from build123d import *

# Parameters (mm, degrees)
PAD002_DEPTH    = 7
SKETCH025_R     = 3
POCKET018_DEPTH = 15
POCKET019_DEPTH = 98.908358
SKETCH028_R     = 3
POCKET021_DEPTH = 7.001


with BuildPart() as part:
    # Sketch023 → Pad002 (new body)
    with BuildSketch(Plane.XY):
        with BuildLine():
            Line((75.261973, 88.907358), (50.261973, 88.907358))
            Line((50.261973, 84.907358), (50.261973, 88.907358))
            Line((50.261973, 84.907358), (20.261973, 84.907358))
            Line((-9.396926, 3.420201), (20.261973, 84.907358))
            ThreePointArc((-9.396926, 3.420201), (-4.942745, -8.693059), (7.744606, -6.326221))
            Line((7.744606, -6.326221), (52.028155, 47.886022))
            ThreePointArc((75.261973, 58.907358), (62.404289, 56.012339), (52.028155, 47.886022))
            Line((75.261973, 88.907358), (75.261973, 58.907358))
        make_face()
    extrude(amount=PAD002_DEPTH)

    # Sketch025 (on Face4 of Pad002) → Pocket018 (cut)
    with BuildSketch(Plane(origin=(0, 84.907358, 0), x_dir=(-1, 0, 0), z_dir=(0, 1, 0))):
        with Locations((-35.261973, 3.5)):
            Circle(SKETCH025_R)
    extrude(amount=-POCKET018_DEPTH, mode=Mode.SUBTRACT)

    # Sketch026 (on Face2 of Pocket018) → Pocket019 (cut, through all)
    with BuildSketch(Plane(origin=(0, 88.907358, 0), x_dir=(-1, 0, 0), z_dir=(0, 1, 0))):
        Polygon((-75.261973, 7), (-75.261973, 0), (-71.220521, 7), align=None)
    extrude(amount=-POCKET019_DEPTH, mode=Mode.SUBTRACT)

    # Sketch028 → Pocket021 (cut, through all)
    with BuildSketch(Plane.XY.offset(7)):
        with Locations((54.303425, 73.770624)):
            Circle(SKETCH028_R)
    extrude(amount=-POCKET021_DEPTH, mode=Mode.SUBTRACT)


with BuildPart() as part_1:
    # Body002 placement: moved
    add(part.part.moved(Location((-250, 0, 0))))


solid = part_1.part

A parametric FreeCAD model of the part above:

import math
import FreeCAD as App
import Part
import Sketcher
Q = App.Units.Quantity

doc = App.newDocument("Part")
body = doc.addObject("PartDesign::Body", "Body")

sketch1 = doc.addObject("Sketcher::SketchObject", "Sketch")
body.addObject(sketch1)
sketch1.AttachmentSupport = (doc.XY_Plane, [""])
sketch1.MapMode = "FlatFace"
sketch1.addGeometry(Part.LineSegment(App.Vector(75.3, 88.9, 0), App.Vector(50.3, 88.9, 0)), False)
sketch1.addGeometry(Part.LineSegment(App.Vector(50.3, 88.9, 0), App.Vector(50.3, 84.9, 0)), False)
sketch1.addGeometry(Part.LineSegment(App.Vector(50.3, 84.9, 0), App.Vector(20.3, 84.9, 0)), False)
sketch1.addGeometry(Part.LineSegment(App.Vector(20.3, 84.9, 0), App.Vector(-9.4, 3.4, 0)), False)
sketch1.addGeometry(Part.ArcOfCircle(Part.Circle(App.Vector(0, 0, 0), App.Vector(0, 0, 1), 10), math.radians(160), math.radians(321)), False)
sketch1.addGeometry(Part.LineSegment(App.Vector(7.7, -6.3, 0), App.Vector(52, 47.9, 0)), False)
sketch1.addGeometry(Part.ArcOfCircle(Part.Circle(App.Vector(75.3, 28.9, 0), App.Vector(0, 0, 1), 30), math.radians(90), math.radians(141)), False)
sketch1.addGeometry(Part.LineSegment(App.Vector(75.3, 58.9, 0), App.Vector(75.3, 88.9, 0)), False)
sketch1.addConstraint(Sketcher.Constraint("Coincident", 0, 2, 1, 1))
sketch1.addConstraint(Sketcher.Constraint("Coincident", 1, 2, 2, 1))
sketch1.addConstraint(Sketcher.Constraint("Coincident", 2, 2, 3, 1))
sketch1.addConstraint(Sketcher.Constraint("Tangent", 3, 2, 4, 1))
sketch1.addConstraint(Sketcher.Constraint("Tangent", 4, 2, 5, 1))
sketch1.addConstraint(Sketcher.Constraint("Tangent", 5, 2, 6, 2))
sketch1.addConstraint(Sketcher.Constraint("Coincident", 6, 1, 7, 1))
sketch1.addConstraint(Sketcher.Constraint("Coincident", 7, 2, 0, 1))
sketch1.addConstraint(Sketcher.Constraint("Horizontal", 0))
sketch1.addConstraint(Sketcher.Constraint("Vertical", 1))
sketch1.addConstraint(Sketcher.Constraint("Horizontal", 2))
sketch1.addConstraint(Sketcher.Constraint("Vertical", 7))
sketch1.addConstraint(Sketcher.Constraint("Coincident", 4, 3, -1, 1))
sketch1.addConstraint(Sketcher.Constraint("Equal", 2, 7))
sketch1.addConstraint(Sketcher.Constraint("Radius", 4, 10.0))
sketch1.addConstraint(Sketcher.Constraint("DistanceX", 0, 2, 0, 1, 25.0))
sketch1.addConstraint(Sketcher.Constraint("DistanceX", 2, 2, 2, 1, 30.0))
sketch1.addConstraint(Sketcher.Constraint("DistanceY", 1, 2, 1, 1, 4.0))
sketch1.addConstraint(Sketcher.Constraint("Angle", 3, Q("-110 deg")))
sketch1.addConstraint(Sketcher.Constraint("Distance", 5, 70.0))
sketch1.addConstraint(Sketcher.Constraint("Radius", 6, 29.999994))
sketch1.addConstraint(Sketcher.Constraint("DistanceX", 3, 2, 2, 2, 29.658899))
pad1 = doc.addObject("PartDesign::Pad", "Pad")
body.addObject(pad1)
pad1.Profile = sketch1
pad1.Length = 7

sketch2 = doc.addObject("Sketcher::SketchObject", "Sketch001")
body.addObject(sketch2)
sketch2.AttachmentSupport = (doc.XZ_Plane, [""])
sketch2.MapMode = "FlatFace"
sketch2.AttachmentOffset = App.Placement(App.Vector(0, 0, -84.907358), App.Rotation())
sketch2.addGeometry(Part.Circle(App.Vector(35.3, 3.5, 0), App.Vector(0, 0, 1), 3), False)
sketch2.addConstraint(Sketcher.Constraint("Diameter", 0, 6.0))
sketch2.addConstraint(Sketcher.Constraint("DistanceY", -1, 1, 0, 3, 3.5))
sketch2.addConstraint(Sketcher.Constraint("DistanceX", -1, 1, 0, 3, 35.261973))
pocket1 = doc.addObject("PartDesign::Pocket", "Pocket")
body.addObject(pocket1)
pocket1.Profile = sketch2
pocket1.Length = 15
pocket1.Reversed = True

sketch3 = doc.addObject("Sketcher::SketchObject", "Sketch002")
body.addObject(sketch3)
sketch3.AttachmentSupport = (doc.XZ_Plane, [""])
sketch3.MapMode = "FlatFace"
sketch3.AttachmentOffset = App.Placement(App.Vector(0, 0, -88.907358), App.Rotation())
sketch3.addGeometry(Part.LineSegment(App.Vector(75.3, 7, 0), App.Vector(75.3, 0, 0)), False)
sketch3.addGeometry(Part.LineSegment(App.Vector(75.3, 0, 0), App.Vector(71.2, 7, 0)), False)
sketch3.addGeometry(Part.LineSegment(App.Vector(71.2, 7, 0), App.Vector(75.3, 7, 0)), False)
sketch3.addConstraint(Sketcher.Constraint("Coincident", 0, 2, 1, 1))
sketch3.addConstraint(Sketcher.Constraint("Coincident", 1, 2, 2, 1))
sketch3.addConstraint(Sketcher.Constraint("Coincident", 2, 2, 0, 1))
sketch3.addConstraint(Sketcher.Constraint("Vertical", 0))
sketch3.addConstraint(Sketcher.Constraint("Horizontal", 2))
sketch3.addConstraint(Sketcher.Constraint("PointOnObject", 0, 2, -1))
sketch3.addConstraint(Sketcher.Constraint("DistanceY", 0, 2, 0, 1, 7.0))
sketch3.addConstraint(Sketcher.Constraint("Angle", 1, Q("120.000001 deg")))
sketch3.addConstraint(Sketcher.Constraint("DistanceX", -1, 1, 1, 2, 71.220521))
pocket2 = doc.addObject("PartDesign::Pocket", "Pocket001")
body.addObject(pocket2)
pocket2.Profile = sketch3
pocket2.Type = "ThroughAll"
pocket2.Reversed = True

sketch4 = doc.addObject("Sketcher::SketchObject", "Sketch003")
body.addObject(sketch4)
sketch4.AttachmentSupport = (doc.XY_Plane, [""])
sketch4.MapMode = "FlatFace"
sketch4.AttachmentOffset = App.Placement(App.Vector(0, 0, 7), App.Rotation())
sketch4.addGeometry(Part.Circle(App.Vector(54.3, 73.8, 0), App.Vector(0, 0, 1), 3), False)
sketch4.addConstraint(Sketcher.Constraint("Diameter", 0, 6.0))
sketch4.addConstraint(Sketcher.Constraint("DistanceX", -1, 1, 0, 3, 54.303425))
sketch4.addConstraint(Sketcher.Constraint("DistanceY", -1, 1, 0, 3, 73.770624))
pocket3 = doc.addObject("PartDesign::Pocket", "Pocket002")
body.addObject(pocket3)
pocket3.Profile = sketch4
pocket3.Type = "ThroughAll"
body2 = doc.addObject("PartDesign::Body", "Body001")
doc.recompute()

body.Placement = App.Placement(App.Vector(-250, 0, 0), App.Rotation(App.Vector(0, 0, 1), 0))
boolean = doc.addObject("PartDesign::Boolean", "Boolean")
body2.addObject(boolean)
boolean.Type = "Fuse"
boolean.addObjects([body])

doc.recompute()
